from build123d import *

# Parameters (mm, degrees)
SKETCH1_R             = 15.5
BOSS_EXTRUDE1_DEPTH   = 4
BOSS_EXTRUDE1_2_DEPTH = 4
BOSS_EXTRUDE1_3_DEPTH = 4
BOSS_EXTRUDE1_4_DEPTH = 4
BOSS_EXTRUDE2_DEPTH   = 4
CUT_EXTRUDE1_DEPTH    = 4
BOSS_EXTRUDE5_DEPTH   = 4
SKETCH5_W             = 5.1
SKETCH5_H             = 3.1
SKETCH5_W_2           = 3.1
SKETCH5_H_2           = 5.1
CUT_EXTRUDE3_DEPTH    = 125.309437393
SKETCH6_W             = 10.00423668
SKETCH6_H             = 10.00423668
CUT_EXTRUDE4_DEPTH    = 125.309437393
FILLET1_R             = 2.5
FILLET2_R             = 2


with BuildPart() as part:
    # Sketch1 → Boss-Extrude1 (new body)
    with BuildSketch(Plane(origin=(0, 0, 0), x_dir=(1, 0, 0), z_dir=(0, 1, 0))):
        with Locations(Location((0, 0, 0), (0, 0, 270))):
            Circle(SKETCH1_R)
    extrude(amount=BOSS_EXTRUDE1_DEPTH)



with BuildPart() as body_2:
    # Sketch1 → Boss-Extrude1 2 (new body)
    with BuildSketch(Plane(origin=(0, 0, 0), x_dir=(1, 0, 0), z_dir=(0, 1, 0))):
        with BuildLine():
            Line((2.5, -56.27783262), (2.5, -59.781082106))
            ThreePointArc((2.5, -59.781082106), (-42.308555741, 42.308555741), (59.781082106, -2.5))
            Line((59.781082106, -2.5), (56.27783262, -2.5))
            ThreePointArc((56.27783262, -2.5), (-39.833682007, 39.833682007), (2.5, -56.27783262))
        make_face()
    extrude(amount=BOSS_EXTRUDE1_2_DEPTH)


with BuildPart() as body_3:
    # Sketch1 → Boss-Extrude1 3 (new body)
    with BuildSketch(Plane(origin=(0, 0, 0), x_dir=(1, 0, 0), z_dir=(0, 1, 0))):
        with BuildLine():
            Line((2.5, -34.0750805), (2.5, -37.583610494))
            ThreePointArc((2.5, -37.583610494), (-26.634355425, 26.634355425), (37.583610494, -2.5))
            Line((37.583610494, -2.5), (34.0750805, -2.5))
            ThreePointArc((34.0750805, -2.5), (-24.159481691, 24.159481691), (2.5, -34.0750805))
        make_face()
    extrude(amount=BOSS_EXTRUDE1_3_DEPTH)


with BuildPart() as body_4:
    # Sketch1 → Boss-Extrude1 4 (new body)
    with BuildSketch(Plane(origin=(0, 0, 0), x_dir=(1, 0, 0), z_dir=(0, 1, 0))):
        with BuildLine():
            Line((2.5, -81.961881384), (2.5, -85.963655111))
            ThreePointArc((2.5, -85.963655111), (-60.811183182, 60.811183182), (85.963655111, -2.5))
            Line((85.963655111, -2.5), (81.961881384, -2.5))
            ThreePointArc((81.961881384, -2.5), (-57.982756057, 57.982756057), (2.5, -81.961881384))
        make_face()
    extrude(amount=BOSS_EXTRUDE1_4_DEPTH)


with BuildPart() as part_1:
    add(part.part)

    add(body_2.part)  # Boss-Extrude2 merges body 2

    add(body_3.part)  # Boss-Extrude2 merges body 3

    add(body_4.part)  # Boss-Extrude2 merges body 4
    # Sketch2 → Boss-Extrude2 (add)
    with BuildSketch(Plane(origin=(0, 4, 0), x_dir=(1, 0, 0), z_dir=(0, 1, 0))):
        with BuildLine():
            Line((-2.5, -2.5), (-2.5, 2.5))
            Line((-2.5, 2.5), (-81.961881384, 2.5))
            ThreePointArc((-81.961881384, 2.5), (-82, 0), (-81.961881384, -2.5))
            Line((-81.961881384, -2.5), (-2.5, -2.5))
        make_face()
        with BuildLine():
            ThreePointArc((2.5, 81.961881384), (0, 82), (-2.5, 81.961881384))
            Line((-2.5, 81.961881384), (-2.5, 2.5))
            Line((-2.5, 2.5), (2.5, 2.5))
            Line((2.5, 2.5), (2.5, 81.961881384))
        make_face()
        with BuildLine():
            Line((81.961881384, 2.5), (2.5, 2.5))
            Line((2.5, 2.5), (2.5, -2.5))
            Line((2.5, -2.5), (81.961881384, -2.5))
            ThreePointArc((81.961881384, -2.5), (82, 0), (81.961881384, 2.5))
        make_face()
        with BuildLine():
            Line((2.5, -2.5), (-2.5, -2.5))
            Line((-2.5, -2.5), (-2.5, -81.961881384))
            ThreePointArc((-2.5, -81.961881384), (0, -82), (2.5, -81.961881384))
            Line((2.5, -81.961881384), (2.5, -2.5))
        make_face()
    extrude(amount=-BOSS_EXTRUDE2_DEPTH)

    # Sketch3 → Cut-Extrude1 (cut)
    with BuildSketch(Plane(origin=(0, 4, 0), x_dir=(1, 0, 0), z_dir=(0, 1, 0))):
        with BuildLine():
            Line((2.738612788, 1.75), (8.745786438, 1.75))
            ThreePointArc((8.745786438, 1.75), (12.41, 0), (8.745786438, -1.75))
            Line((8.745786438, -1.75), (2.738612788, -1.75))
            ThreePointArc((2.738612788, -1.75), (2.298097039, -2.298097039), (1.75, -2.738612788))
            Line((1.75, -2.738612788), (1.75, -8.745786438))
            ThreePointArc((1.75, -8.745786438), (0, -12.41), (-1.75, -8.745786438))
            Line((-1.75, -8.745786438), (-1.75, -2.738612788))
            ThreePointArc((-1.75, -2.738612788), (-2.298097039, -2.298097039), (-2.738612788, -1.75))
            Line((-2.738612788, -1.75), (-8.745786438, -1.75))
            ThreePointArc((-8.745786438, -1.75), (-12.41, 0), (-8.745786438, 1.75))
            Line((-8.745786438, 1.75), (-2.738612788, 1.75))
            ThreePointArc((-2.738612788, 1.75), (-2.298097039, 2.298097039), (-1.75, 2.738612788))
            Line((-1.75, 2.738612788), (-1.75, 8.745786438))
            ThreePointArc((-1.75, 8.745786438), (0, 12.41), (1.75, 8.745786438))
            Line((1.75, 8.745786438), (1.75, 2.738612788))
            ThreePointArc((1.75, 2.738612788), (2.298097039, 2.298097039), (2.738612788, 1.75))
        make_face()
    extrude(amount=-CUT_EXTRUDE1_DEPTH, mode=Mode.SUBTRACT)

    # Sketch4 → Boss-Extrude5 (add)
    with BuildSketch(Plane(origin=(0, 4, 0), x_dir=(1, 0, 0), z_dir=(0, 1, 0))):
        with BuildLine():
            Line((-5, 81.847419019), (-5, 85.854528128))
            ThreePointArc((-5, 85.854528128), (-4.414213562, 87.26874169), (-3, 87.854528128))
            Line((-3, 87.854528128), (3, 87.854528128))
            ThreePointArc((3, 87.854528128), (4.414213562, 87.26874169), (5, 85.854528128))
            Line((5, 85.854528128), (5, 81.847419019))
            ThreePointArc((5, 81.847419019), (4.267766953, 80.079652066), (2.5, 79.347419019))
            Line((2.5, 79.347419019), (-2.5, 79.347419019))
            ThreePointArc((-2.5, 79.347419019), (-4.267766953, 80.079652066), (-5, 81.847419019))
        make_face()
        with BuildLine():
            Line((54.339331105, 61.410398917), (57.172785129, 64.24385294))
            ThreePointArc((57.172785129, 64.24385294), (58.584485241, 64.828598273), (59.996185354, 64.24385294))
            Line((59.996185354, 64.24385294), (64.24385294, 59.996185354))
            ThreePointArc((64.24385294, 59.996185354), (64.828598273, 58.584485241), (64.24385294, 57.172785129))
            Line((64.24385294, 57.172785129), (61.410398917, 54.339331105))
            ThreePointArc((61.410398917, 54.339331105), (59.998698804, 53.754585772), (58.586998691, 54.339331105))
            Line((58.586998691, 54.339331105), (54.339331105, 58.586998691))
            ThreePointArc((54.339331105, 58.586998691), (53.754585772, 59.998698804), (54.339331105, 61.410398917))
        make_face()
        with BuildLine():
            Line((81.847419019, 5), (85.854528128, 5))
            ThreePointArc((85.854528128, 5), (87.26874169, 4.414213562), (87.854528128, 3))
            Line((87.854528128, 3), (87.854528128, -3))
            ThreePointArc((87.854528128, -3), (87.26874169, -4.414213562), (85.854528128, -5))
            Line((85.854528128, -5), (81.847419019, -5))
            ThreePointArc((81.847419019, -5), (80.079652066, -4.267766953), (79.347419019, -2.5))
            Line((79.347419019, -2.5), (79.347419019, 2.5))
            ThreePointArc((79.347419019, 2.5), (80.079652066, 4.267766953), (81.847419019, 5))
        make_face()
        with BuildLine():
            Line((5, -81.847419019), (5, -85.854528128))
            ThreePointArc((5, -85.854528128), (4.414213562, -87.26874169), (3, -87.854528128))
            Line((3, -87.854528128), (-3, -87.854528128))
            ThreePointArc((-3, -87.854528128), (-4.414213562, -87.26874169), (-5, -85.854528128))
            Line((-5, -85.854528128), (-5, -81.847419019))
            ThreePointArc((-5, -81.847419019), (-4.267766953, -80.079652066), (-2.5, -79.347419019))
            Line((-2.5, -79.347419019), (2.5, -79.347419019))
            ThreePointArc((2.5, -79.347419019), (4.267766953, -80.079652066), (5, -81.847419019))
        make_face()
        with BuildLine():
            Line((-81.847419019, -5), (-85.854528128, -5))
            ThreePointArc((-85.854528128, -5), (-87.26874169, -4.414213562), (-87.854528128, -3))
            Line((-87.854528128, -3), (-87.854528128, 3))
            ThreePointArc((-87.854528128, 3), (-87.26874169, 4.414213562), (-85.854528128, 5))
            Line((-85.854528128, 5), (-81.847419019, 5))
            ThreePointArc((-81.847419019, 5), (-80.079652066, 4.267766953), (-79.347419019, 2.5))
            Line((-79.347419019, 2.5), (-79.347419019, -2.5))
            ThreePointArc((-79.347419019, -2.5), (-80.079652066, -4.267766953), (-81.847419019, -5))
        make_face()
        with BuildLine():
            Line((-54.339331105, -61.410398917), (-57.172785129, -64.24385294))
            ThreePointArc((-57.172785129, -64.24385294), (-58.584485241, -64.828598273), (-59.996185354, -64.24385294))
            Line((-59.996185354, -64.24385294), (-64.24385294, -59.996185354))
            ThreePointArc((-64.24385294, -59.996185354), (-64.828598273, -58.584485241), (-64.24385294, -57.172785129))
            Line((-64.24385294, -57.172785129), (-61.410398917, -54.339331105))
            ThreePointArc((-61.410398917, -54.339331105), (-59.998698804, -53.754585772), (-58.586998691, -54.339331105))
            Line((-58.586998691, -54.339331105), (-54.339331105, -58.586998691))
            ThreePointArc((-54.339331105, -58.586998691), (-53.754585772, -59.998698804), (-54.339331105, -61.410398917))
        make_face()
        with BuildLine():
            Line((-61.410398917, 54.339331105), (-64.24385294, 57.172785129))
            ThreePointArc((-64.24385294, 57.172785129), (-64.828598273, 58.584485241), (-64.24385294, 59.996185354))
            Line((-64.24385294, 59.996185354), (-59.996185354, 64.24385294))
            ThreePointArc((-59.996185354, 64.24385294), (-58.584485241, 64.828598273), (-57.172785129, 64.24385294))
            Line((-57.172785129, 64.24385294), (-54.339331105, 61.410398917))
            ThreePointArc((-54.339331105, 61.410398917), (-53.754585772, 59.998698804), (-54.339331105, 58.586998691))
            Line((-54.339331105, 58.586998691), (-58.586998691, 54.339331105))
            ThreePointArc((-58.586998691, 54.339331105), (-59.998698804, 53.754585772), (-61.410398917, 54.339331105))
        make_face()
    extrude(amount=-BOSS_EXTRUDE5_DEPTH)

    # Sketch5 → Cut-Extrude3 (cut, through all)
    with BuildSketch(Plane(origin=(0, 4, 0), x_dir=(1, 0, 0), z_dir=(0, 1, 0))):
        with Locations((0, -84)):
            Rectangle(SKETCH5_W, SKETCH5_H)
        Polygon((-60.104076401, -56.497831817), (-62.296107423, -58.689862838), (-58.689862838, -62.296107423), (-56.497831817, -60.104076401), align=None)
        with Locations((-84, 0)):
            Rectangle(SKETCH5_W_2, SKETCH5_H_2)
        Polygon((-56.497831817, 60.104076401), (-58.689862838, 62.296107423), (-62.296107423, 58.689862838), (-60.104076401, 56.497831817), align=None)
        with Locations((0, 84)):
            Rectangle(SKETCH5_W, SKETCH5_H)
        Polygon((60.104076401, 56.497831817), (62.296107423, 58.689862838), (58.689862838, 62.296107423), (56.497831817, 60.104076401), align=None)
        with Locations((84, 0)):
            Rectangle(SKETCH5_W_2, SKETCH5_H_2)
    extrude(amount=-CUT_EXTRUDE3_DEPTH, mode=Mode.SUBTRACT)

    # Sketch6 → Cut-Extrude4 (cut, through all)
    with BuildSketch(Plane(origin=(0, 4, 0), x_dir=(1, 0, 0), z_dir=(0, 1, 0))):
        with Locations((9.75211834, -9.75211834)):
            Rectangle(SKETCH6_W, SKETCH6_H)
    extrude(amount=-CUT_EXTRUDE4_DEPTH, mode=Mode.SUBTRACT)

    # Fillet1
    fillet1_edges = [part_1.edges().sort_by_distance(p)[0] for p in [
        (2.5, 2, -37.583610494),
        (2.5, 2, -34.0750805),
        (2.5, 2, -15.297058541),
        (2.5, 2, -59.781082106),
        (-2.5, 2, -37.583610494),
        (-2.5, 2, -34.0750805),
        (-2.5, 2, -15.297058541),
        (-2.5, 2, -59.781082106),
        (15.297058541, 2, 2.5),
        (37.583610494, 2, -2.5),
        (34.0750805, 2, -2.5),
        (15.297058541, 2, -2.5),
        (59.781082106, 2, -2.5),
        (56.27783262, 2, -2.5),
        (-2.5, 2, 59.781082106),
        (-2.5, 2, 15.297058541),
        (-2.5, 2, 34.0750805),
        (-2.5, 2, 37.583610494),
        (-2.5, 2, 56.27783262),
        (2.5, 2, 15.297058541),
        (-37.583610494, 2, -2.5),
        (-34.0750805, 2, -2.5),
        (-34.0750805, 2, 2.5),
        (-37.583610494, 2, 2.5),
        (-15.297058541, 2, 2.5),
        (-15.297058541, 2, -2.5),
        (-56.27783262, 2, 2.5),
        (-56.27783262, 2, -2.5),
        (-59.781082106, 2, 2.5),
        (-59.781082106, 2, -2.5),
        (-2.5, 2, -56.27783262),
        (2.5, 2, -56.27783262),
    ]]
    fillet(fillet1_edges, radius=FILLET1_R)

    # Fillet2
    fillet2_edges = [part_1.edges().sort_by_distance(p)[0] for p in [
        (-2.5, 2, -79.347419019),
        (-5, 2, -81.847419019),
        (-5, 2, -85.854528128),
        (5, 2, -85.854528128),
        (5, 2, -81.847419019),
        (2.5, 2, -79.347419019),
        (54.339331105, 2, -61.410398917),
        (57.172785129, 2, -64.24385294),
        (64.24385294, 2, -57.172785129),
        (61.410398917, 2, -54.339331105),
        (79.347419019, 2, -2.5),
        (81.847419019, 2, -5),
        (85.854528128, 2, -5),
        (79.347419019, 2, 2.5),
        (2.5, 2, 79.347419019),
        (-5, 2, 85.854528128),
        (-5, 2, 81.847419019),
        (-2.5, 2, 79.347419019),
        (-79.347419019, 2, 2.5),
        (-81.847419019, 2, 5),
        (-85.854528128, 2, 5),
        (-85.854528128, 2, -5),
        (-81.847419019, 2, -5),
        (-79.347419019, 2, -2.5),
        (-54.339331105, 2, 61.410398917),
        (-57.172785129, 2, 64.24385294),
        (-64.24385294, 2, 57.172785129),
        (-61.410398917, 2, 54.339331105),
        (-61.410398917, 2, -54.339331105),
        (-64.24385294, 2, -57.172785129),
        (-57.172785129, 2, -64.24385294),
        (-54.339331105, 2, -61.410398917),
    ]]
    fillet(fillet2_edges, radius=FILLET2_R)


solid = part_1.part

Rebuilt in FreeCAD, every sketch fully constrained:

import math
import FreeCAD as App
import Part
import Sketcher

V = App.Vector


def edges_at(feature, points):
    """Names of the edges that pass closest to the given points."""
    edges = feature.Shape.Edges
    near = lambda p: min(range(len(edges)), key=lambda i: edges[i].distToShape(Part.Vertex(*p))[0])
    return sorted({f"Edge{near(p) + 1}" for p in points})


def add_polygon(sketch, points):
    """Adds a closed chain of lines whose ends are joined by coincident constraints."""
    first, n = sketch.GeometryCount, len(points)
    for a, b in zip(points, points[1:] + points[:1]):
        sketch.addGeometry(Part.LineSegment(App.Vector(*a, 0), App.Vector(*b, 0)), False)
    for i in range(n):
        sketch.addConstraint(Sketcher.Constraint("Coincident", first + i, 2, first + (i + 1) % n, 1))

doc = App.newDocument("Part")
body = doc.addObject("PartDesign::Body", "Body")

# Sketch on XZ plane
sketch1 = body.newObject("Sketcher::SketchObject", "Sketch")
sketch1.AttachmentSupport = (doc.getObject("XZ_Plane"), [""])
sketch1.MapMode = "FlatFace"
sketch1.addGeometry(Part.Circle(V(0, 0, 0), V(0, 0, 1), 15.5), False)
sketch1.addConstraint(Sketcher.Constraint("Coincident", 0, 3, -1, 1))
sketch1.addConstraint(Sketcher.Constraint("Diameter", 0, 31.0))
pad1 = body.newObject("PartDesign::Pad", "Pad")
pad1.Profile = sketch1
pad1.Length = 4
pad1.Reversed = True
body2 = doc.addObject("PartDesign::Body", "Body001")

# Sketch on XZ plane
sketch2 = body2.newObject("Sketcher::SketchObject", "Sketch001")
sketch2.AttachmentSupport = (doc.getObject("XZ_Plane001"), [""])
sketch2.MapMode = "FlatFace"
sketch2.addGeometry(Part.LineSegment(V(2.5, 59.781082, 0), V(2.5, 56.277833, 0)), False)
sketch2.addGeometry(Part.ArcOfCircle(Part.Circle(V(0, 0, 0), V(0, 0, 1), 56.333333), math.radians(87.456453), math.radians(362.543547)), False)
sketch2.addGeometry(Part.LineSegment(V(56.277833, 2.5, 0), V(59.781082, 2.5, 0)), False)
sketch2.addGeometry(Part.ArcOfCircle(Part.Circle(V(0, 0, 0), V(0, 0, 1), 59.833333), math.radians(87.605329), math.radians(362.394671)), False)
sketch2.addConstraint(Sketcher.Constraint("Coincident", 0, 2, 1, 1))
sketch2.addConstraint(Sketcher.Constraint("Coincident", 1, 2, 2, 1))
sketch2.addConstraint(Sketcher.Constraint("Coincident", 2, 2, 3, 2))
sketch2.addConstraint(Sketcher.Constraint("Coincident", 3, 1, 0, 1))
sketch2.addConstraint(Sketcher.Constraint("Vertical", 0))
sketch2.addConstraint(Sketcher.Constraint("Horizontal", 2))
sketch2.addConstraint(Sketcher.Constraint("Coincident", 1, 3, -1, 1))
sketch2.addConstraint(Sketcher.Constraint("Coincident", 3, 3, -1, 1))
sketch2.addConstraint(Sketcher.Constraint("DistanceX", -1, 1, 0, 2, 2.5))
sketch2.addConstraint(Sketcher.Constraint("DistanceY", -1, 1, 1, 2, 2.5))
sketch2.addConstraint(Sketcher.Constraint("Radius", 1, 56.333333))
sketch2.addConstraint(Sketcher.Constraint("Radius", 3, 59.833333))
pad2 = body2.newObject("PartDesign::Pad", "Pad001")
pad2.Profile = sketch2
pad2.Length = 4
pad2.Reversed = True
body3 = doc.addObject("PartDesign::Body", "Body002")

# Sketch on XZ plane
sketch3 = body3.newObject("Sketcher::SketchObject", "Sketch002")
sketch3.AttachmentSupport = (doc.getObject("XZ_Plane002"), [""])
sketch3.MapMode = "FlatFace"
sketch3.addGeometry(Part.LineSegment(V(2.5, 37.58361, 0), V(2.5, 34.07508, 0)), False)
sketch3.addGeometry(Part.ArcOfCircle(Part.Circle(V(0, 0, 0), V(0, 0, 1), 34.166667), math.radians(85.803876), math.radians(364.196124)), False)
sketch3.addGeometry(Part.LineSegment(V(34.07508, 2.5, 0), V(37.58361, 2.5, 0)), False)
sketch3.addGeometry(Part.ArcOfCircle(Part.Circle(V(0, 0, 0), V(0, 0, 1), 37.666667), math.radians(86.194385), math.radians(363.805615)), False)
sketch3.addConstraint(Sketcher.Constraint("Coincident", 0, 2, 1, 1))
sketch3.addConstraint(Sketcher.Constraint("Coincident", 1, 2, 2, 1))
sketch3.addConstraint(Sketcher.Constraint("Coincident", 2, 2, 3, 2))
sketch3.addConstraint(Sketcher.Constraint("Coincident", 3, 1, 0, 1))
sketch3.addConstraint(Sketcher.Constraint("Vertical", 0))
sketch3.addConstraint(Sketcher.Constraint("Horizontal", 2))
sketch3.addConstraint(Sketcher.Constraint("Coincident", 1, 3, -1, 1))
sketch3.addConstraint(Sketcher.Constraint("Coincident", 3, 3, -1, 1))
sketch3.addConstraint(Sketcher.Constraint("Equal", 2, 0))
sketch3.addConstraint(Sketcher.Constraint("DistanceX", -1, 1, 0, 2, 2.5))
sketch3.addConstraint(Sketcher.Constraint("Radius", 1, 34.166667))
sketch3.addConstraint(Sketcher.Constraint("Radius", 3, 37.666667))
pad3 = body3.newObject("PartDesign::Pad", "Pad002")
pad3.Profile = sketch3
pad3.Length = 4
pad3.Reversed = True
body4 = doc.addObject("PartDesign::Body", "Body003")

# Sketch on XZ plane
sketch4 = body4.newObject("Sketcher::SketchObject", "Sketch003")
sketch4.AttachmentSupport = (doc.getObject("XZ_Plane003"), [""])
sketch4.MapMode = "FlatFace"
sketch4.addGeometry(Part.LineSegment(V(2.5, 85.963655, 0), V(2.5, 81.961881, 0)), False)
sketch4.addGeometry(Part.ArcOfCircle(Part.Circle(V(0, 0, 0), V(0, 0, 1), 82), math.radians(88.252907), math.radians(361.747093)), False)
sketch4.addGeometry(Part.LineSegment(V(81.961881, 2.5, 0), V(85.963655, 2.5, 0)), False)
sketch4.addGeometry(Part.ArcOfCircle(Part.Circle(V(0, 0, 0), V(0, 0, 1), 86), math.radians(88.33419), math.radians(361.66581)), False)
sketch4.addConstraint(Sketcher.Constraint("Coincident", 0, 2, 1, 1))
sketch4.addConstraint(Sketcher.Constraint("Coincident", 1, 2, 2, 1))
sketch4.addConstraint(Sketcher.Constraint("Coincident", 2, 2, 3, 2))
sketch4.addConstraint(Sketcher.Constraint("Coincident", 3, 1, 0, 1))
sketch4.addConstraint(Sketcher.Constraint("Vertical", 0))
sketch4.addConstraint(Sketcher.Constraint("Horizontal", 2))
sketch4.addConstraint(Sketcher.Constraint("Coincident", 1, 3, -1, 1))
sketch4.addConstraint(Sketcher.Constraint("Coincident", 3, 3, -1, 1))
sketch4.addConstraint(Sketcher.Constraint("Radius", 1, 82.0))
sketch4.addConstraint(Sketcher.Constraint("Radius", 3, 86.0))
sketch4.addConstraint(Sketcher.Constraint("DistanceX", -1, 1, 0, 2, 2.5))
sketch4.addConstraint(Sketcher.Constraint("DistanceY", -1, 1, 1, 2, 2.5))
pad4 = body4.newObject("PartDesign::Pad", "Pad003")
pad4.Profile = sketch4
pad4.Length = 4
pad4.Reversed = True
body.AllowCompound = True
doc.recompute()

boolean = body.newObject("PartDesign::Boolean", "Boolean")
boolean.Type = "Fuse"
boolean.addObjects([body2])
doc.recompute()

boolean2 = body.newObject("PartDesign::Boolean", "Boolean001")
boolean2.Type = "Fuse"
boolean2.addObjects([body3])
doc.recompute()

boolean3 = body.newObject("PartDesign::Boolean", "Boolean002")
boolean3.Type = "Fuse"
boolean3.addObjects([body4])

# Sketch on XZ plane
sketch5 = body.newObject("Sketcher::SketchObject", "Sketch004")
sketch5.AttachmentSupport = (doc.getObject("XZ_Plane"), [""])
sketch5.MapMode = "FlatFace"
sketch5.AttachmentOffset = App.Placement(V(0, 0, -4), App.Rotation())
sketch5.addGeometry(Part.LineSegment(V(-2.5, 2.5, 0), V(-2.5, -2.5, 0)), False)
sketch5.addGeometry(Part.LineSegment(V(-2.5, -2.5, 0), V(-81.961881, -2.5, 0)), False)
sketch5.addGeometry(Part.ArcOfCircle(Part.Circle(V(0, 0, 0), V(0, 0, 1), 82), math.radians(178.252907), math.radians(181.747093)), False)
sketch5.addGeometry(Part.LineSegment(V(-81.961881, 2.5, 0), V(-2.5, 2.5, 0)), False)
sketch5.addGeometry(Part.ArcOfCircle(Part.Circle(V(0, 0, 0), V(0, 0, 1), 82), math.radians(-91.747093), math.radians(-88.252907)), False)
sketch5.addGeometry(Part.LineSegment(V(-2.5, -81.961881, 0), V(-2.5, -2.5, 0)), False)
sketch5.addGeometry(Part.LineSegment(V(-2.5, -2.5, 0), V(2.5, -2.5, 0)), False)
sketch5.addGeometry(Part.LineSegment(V(2.5, -2.5, 0), V(2.5, -81.961881, 0)), False)
sketch5.addGeometry(Part.LineSegment(V(81.961881, -2.5, 0), V(2.5, -2.5, 0)), False)
sketch5.addGeometry(Part.LineSegment(V(2.5, -2.5, 0), V(2.5, 2.5, 0)), False)
sketch5.addGeometry(Part.LineSegment(V(2.5, 2.5, 0), V(81.961881, 2.5, 0)), False)
sketch5.addGeometry(Part.ArcOfCircle(Part.Circle(V(0, 0, 0), V(0, 0, 1), 82), math.radians(-1.747093), math.radians(1.747093)), False)
sketch5.addGeometry(Part.LineSegment(V(2.5, 2.5, 0), V(-2.5, 2.5, 0)), False)
sketch5.addGeometry(Part.LineSegment(V(-2.5, 2.5, 0), V(-2.5, 81.961881, 0)), False)
sketch5.addGeometry(Part.ArcOfCircle(Part.Circle(V(0, 0, 0), V(0, 0, 1), 82), math.radians(88.252907), math.radians(91.747093)), False)
sketch5.addGeometry(Part.LineSegment(V(2.5, 81.961881, 0), V(2.5, 2.5, 0)), False)
sketch5.addConstraint(Sketcher.Constraint("Coincident", 0, 2, 1, 1))
sketch5.addConstraint(Sketcher.Constraint("Coincident", 1, 2, 2, 2))
sketch5.addConstraint(Sketcher.Constraint("Coincident", 2, 1, 3, 1))
sketch5.addConstraint(Sketcher.Constraint("Coincident", 3, 2, 0, 1))
sketch5.addConstraint(Sketcher.Constraint("Coincident", 4, 1, 5, 1))
sketch5.addConstraint(Sketcher.Constraint("Coincident", 5, 2, 6, 1))
sketch5.addConstraint(Sketcher.Constraint("Coincident", 6, 2, 7, 1))
sketch5.addConstraint(Sketcher.Constraint("Coincident", 7, 2, 4, 2))
sketch5.addConstraint(Sketcher.Constraint("Coincident", 8, 2, 9, 1))
sketch5.addConstraint(Sketcher.Constraint("Coincident", 9, 2, 10, 1))
sketch5.addConstraint(Sketcher.Constraint("Coincident", 10, 2, 11, 2))
sketch5.addConstraint(Sketcher.Constraint("Coincident", 11, 1, 8, 1))
sketch5.addConstraint(Sketcher.Constraint("Coincident", 12, 2, 13, 1))
sketch5.addConstraint(Sketcher.Constraint("Coincident", 13, 2, 14, 2))
sketch5.addConstraint(Sketcher.Constraint("Coincident", 14, 1, 15, 1))
sketch5.addConstraint(Sketcher.Constraint("Coincident", 15, 2, 12, 1))
sketch5.addConstraint(Sketcher.Constraint("Vertical", 0))
sketch5.addConstraint(Sketcher.Constraint("Horizontal", 1))
sketch5.addConstraint(Sketcher.Constraint("Horizontal", 3))
sketch5.addConstraint(Sketcher.Constraint("Vertical", 5))
sketch5.addConstraint(Sketcher.Constraint("Horizontal", 6))
sketch5.addConstraint(Sketcher.Constraint("Vertical", 7))
sketch5.addConstraint(Sketcher.Constraint("Horizontal", 8))
sketch5.addConstraint(Sketcher.Constraint("Vertical", 9))
sketch5.addConstraint(Sketcher.Constraint("Horizontal", 10))
sketch5.addConstraint(Sketcher.Constraint("Horizontal", 12))
sketch5.addConstraint(Sketcher.Constraint("Vertical", 13))
sketch5.addConstraint(Sketcher.Constraint("Vertical", 15))
sketch5.addConstraint(Sketcher.Constraint("Coincident", 2, 3, -1, 1))
sketch5.addConstraint(Sketcher.Constraint("Coincident", 4, 3, -1, 1))
sketch5.addConstraint(Sketcher.Constraint("Coincident", 11, 3, -1, 1))
sketch5.addConstraint(Sketcher.Constraint("Coincident", 14, 3, -1, 1))
sketch5.addConstraint(Sketcher.Constraint("Coincident", 5, 2, 0, 2))
sketch5.addConstraint(Sketcher.Constraint("Coincident", 8, 2, 6, 2))
sketch5.addConstraint(Sketcher.Constraint("Coincident", 12, 2, 3, 2))
sketch5.addConstraint(Sketcher.Constraint("Coincident", 15, 2, 9, 2))
sketch5.addConstraint(Sketcher.Constraint("Equal", 2, 4))
sketch5.addConstraint(Sketcher.Constraint("Equal", 4, 11))
sketch5.addConstraint(Sketcher.Constraint("Equal", 11, 14))
sketch5.addConstraint(Sketcher.Constraint("Symmetric", 3, 2, 6, 2, -1, 1))
sketch5.addConstraint(Sketcher.Constraint("Equal", 12, 0))
sketch5.addConstraint(Sketcher.Constraint("Radius", 2, 82.0))
sketch5.addConstraint(Sketcher.Constraint("DistanceX", 6, 1, 6, 2, 5.0))
pad5 = body.newObject("PartDesign::Pad", "Pad004")
pad5.Profile = sketch5
pad5.Length = 4

# Sketch on XZ plane
sketch6 = body.newObject("Sketcher::SketchObject", "Sketch005")
sketch6.AttachmentSupport = (doc.getObject("XZ_Plane"), [""])
sketch6.MapMode = "FlatFace"
sketch6.AttachmentOffset = App.Placement(V(0, 0, -4), App.Rotation())
sketch6.addGeometry(Part.LineSegment(V(8.745786, -1.75, 0), V(2.738613, -1.75, 0)), False)
sketch6.addGeometry(Part.ArcOfCircle(Part.Circle(V(0, 0, 0), V(0, 0, 1), 3.25), math.radians(-57.42103), math.radians(-32.57897)), False)
sketch6.addGeometry(Part.LineSegment(V(1.75, -2.738613, 0), V(1.75, -8.745786, 0)), False)
sketch6.addGeometry(Part.ArcOfCircle(Part.Circle(V(0, -10.16, 0), V(0, 0, 1), 2.25), math.radians(141.057559), math.radians(398.942441)), False)
sketch6.addGeometry(Part.LineSegment(V(-1.75, -8.745786, 0), V(-1.75, -2.738613, 0)), False)
sketch6.addGeometry(Part.ArcOfCircle(Part.Circle(V(0, 0, 0), V(0, 0, 1), 3.25), math.radians(-147.42103), math.radians(-122.57897)), False)
sketch6.addGeometry(Part.LineSegment(V(-2.738613, -1.75, 0), V(-8.745786, -1.75, 0)), False)
sketch6.addGeometry(Part.ArcOfCircle(Part.Circle(V(-10.16, 0, 0), V(0, 0, 1), 2.25), math.radians(51.057559), math.radians(308.942441)), False)
sketch6.addGeometry(Part.LineSegment(V(-8.745786, 1.75, 0), V(-2.738613, 1.75, 0)), False)
sketch6.addGeometry(Part.ArcOfCircle(Part.Circle(V(0, 0, 0), V(0, 0, 1), 3.25), math.radians(122.57897), math.radians(147.42103)), False)
sketch6.addGeometry(Part.LineSegment(V(-1.75, 2.738613, 0), V(-1.75, 8.745786, 0)), False)
sketch6.addGeometry(Part.ArcOfCircle(Part.Circle(V(0, 10.16, 0), V(0, 0, 1), 2.25), math.radians(-38.942441), math.radians(218.942441)), False)
sketch6.addGeometry(Part.LineSegment(V(1.75, 8.745786, 0), V(1.75, 2.738613, 0)), False)
sketch6.addGeometry(Part.ArcOfCircle(Part.Circle(V(0, 0, 0), V(0, 0, 1), 3.25), math.radians(32.57897), math.radians(57.42103)), False)
sketch6.addGeometry(Part.LineSegment(V(2.738613, 1.75, 0), V(8.745786, 1.75, 0)), False)
sketch6.addGeometry(Part.ArcOfCircle(Part.Circle(V(10.16, 0, 0), V(0, 0, 1), 2.25), math.radians(-128.942441), math.radians(128.942441)), False)
sketch6.addConstraint(Sketcher.Constraint("Coincident", 0, 2, 1, 2))
sketch6.addConstraint(Sketcher.Constraint("Coincident", 1, 1, 2, 1))
sketch6.addConstraint(Sketcher.Constraint("Coincident", 2, 2, 3, 2))
sketch6.addConstraint(Sketcher.Constraint("Coincident", 3, 1, 4, 1))
sketch6.addConstraint(Sketcher.Constraint("Coincident", 4, 2, 5, 2))
sketch6.addConstraint(Sketcher.Constraint("Coincident", 5, 1, 6, 1))
sketch6.addConstraint(Sketcher.Constraint("Coincident", 6, 2, 7, 2))
sketch6.addConstraint(Sketcher.Constraint("Coincident", 7, 1, 8, 1))
sketch6.addConstraint(Sketcher.Constraint("Coincident", 8, 2, 9, 2))
sketch6.addConstraint(Sketcher.Constraint("Coincident", 9, 1, 10, 1))
sketch6.addConstraint(Sketcher.Constraint("Coincident", 10, 2, 11, 2))
sketch6.addConstraint(Sketcher.Constraint("Coincident", 11, 1, 12, 1))
sketch6.addConstraint(Sketcher.Constraint("Coincident", 12, 2, 13, 2))
sketch6.addConstraint(Sketcher.Constraint("Coincident", 13, 1, 14, 1))
sketch6.addConstraint(Sketcher.Constraint("Coincident", 14, 2, 15, 2))
sketch6.addConstraint(Sketcher.Constraint("Coincident", 15, 1, 0, 1))
sketch6.addConstraint(Sketcher.Constraint("Horizontal", 0))
sketch6.addConstraint(Sketcher.Constraint("Vertical", 2))
sketch6.addConstraint(Sketcher.Constraint("Vertical", 4))
sketch6.addConstraint(Sketcher.Constraint("Horizontal", 6))
sketch6.addConstraint(Sketcher.Constraint("Horizontal", 8))
sketch6.addConstraint(Sketcher.Constraint("Vertical", 10))
sketch6.addConstraint(Sketcher.Constraint("Vertical", 12))
sketch6.addConstraint(Sketcher.Constraint("Horizontal", 14))
sketch6.addConstraint(Sketcher.Constraint("Coincident", 1, 3, -1, 1))
sketch6.addConstraint(Sketcher.Constraint("Coincident", 5, 3, -1, 1))
sketch6.addConstraint(Sketcher.Constraint("Coincident", 9, 3, -1, 1))
sketch6.addConstraint(Sketcher.Constraint("Coincident", 13, 3, -1, 1))
sketch6.addConstraint(Sketcher.Constraint("Equal", 1, 5))
sketch6.addConstraint(Sketcher.Constraint("Equal", 3, 7))
sketch6.addConstraint(Sketcher.Constraint("Equal", 5, 9))
sketch6.addConstraint(Sketcher.Constraint("Equal", 7, 11))
sketch6.addConstraint(Sketcher.Constraint("Equal", 9, 13))
sketch6.addConstraint(Sketcher.Constraint("Equal", 11, 15))
sketch6.addConstraint(Sketcher.Constraint("Symmetric", 3, 3, 11, 3, -1, 1))
sketch6.addConstraint(Sketcher.Constraint("Symmetric", 7, 3, 15, 3, -1, 1))
sketch6.addConstraint(Sketcher.Constraint("Symmetric", 2, 2, 3, 1, -2))
sketch6.addConstraint(Sketcher.Constraint("Symmetric", 7, 1, 14, 2, -2))
sketch6.addConstraint(Sketcher.Constraint("Horizontal", 0, 2, 5, 1))
sketch6.addConstraint(Sketcher.Constraint("Horizontal", 10, 2, 11, 1))
sketch6.addConstraint(Sketcher.Constraint("Vertical", 6, 2, 7, 1))
sketch6.addConstraint(Sketcher.Constraint("Vertical", 4, 2, 9, 1))
sketch6.addConstraint(Sketcher.Constraint("Equal", 14, 2))
sketch6.addConstraint(Sketcher.Constraint("Radius", 1, 3.25))
sketch6.addConstraint(Sketcher.Constraint("Radius", 3, 2.25))
sketch6.addConstraint(Sketcher.Constraint("DistanceX", 3, 1, 2, 2, 3.5))
sketch6.addConstraint(Sketcher.Constraint("DistanceY", 6, 2, 7, 1, 3.5))
sketch6.addConstraint(Sketcher.Constraint("DistanceY", 3, 3, -1, 1, 10.16))
pocket1 = body.newObject("PartDesign::Pocket", "Pocket")
pocket1.Profile = sketch6
pocket1.Length = 4
pocket1.Reversed = True

# Sketch on XZ plane
sketch7 = body.newObject("Sketcher::SketchObject", "Sketch006")
sketch7.AttachmentSupport = (doc.getObject("XZ_Plane"), [""])
sketch7.MapMode = "FlatFace"
sketch7.AttachmentOffset = App.Placement(V(0, 0, -4), App.Rotation())
sketch7.addGeometry(Part.LineSegment(V(-5, -85.854528, 0), V(-5, -81.847419, 0)), False)
sketch7.addGeometry(Part.ArcOfCircle(Part.Circle(V(-2.5, -81.847419, 0), V(0, 0, 1), 2.5), math.radians(90), math.radians(180)), False)
sketch7.addGeometry(Part.LineSegment(V(-2.5, -79.347419, 0), V(2.5, -79.347419, 0)), False)
sketch7.addGeometry(Part.ArcOfCircle(Part.Circle(V(2.5, -81.847419, 0), V(0, 0, 1), 2.5), math.radians(0), math.radians(90)), False)
sketch7.addGeometry(Part.LineSegment(V(5, -81.847419, 0), V(5, -85.854528, 0)), False)
sketch7.addGeometry(Part.ArcOfCircle(Part.Circle(V(3, -85.854528, 0), V(0, 0, 1), 2), math.radians(-90), math.radians(0)), False)
sketch7.addGeometry(Part.LineSegment(V(3, -87.854528, 0), V(-3, -87.854528, 0)), False)
sketch7.addGeometry(Part.ArcOfCircle(Part.Circle(V(-3, -85.854528, 0), V(0, 0, 1), 2), math.radians(-180), math.radians(-90)), False)
sketch7.addGeometry(Part.LineSegment(V(57.172785, -64.243853, 0), V(54.339331, -61.410399, 0)), False)
sketch7.addGeometry(Part.ArcOfCircle(Part.Circle(V(55.751031, -59.998699, 0), V(0, 0, 1), 1.996445), math.radians(135), math.radians(225)), False)
sketch7.addGeometry(Part.LineSegment(V(54.339331, -58.586999, 0), V(58.586999, -54.339331, 0)), False)
sketch7.addGeometry(Part.ArcOfCircle(Part.Circle(V(59.998699, -55.751031, 0), V(0, 0, 1), 1.996445), math.radians(45), math.radians(135)), False)
sketch7.addGeometry(Part.LineSegment(V(61.410399, -54.339331, 0), V(64.243853, -57.172785, 0)), False)
sketch7.addGeometry(Part.ArcOfCircle(Part.Circle(V(62.832153, -58.584485, 0), V(0, 0, 1), 1.996445), math.radians(-45), math.radians(45)), False)
sketch7.addGeometry(Part.LineSegment(V(64.243853, -59.996185, 0), V(59.996185, -64.243853, 0)), False)
sketch7.addGeometry(Part.ArcOfCircle(Part.Circle(V(58.584485, -62.832153, 0), V(0, 0, 1), 1.996445), math.radians(-135), math.radians(-45)), False)
sketch7.addGeometry(Part.LineSegment(V(85.854528, -5, 0), V(81.847419, -5, 0)), False)
sketch7.addGeometry(Part.ArcOfCircle(Part.Circle(V(81.847419, -2.5, 0), V(0, 0, 1), 2.5), math.radians(180), math.radians(270)), False)
sketch7.addGeometry(Part.LineSegment(V(79.347419, -2.5, 0), V(79.347419, 2.5, 0)), False)
sketch7.addGeometry(Part.ArcOfCircle(Part.Circle(V(81.847419, 2.5, 0), V(0, 0, 1), 2.5), math.radians(90), math.radians(180)), False)
sketch7.addGeometry(Part.LineSegment(V(81.847419, 5, 0), V(85.854528, 5, 0)), False)
sketch7.addGeometry(Part.ArcOfCircle(Part.Circle(V(85.854528, 3, 0), V(0, 0, 1), 2), math.radians(0), math.radians(90)), False)
sketch7.addGeometry(Part.LineSegment(V(87.854528, 3, 0), V(87.854528, -3, 0)), False)
sketch7.addGeometry(Part.ArcOfCircle(Part.Circle(V(85.854528, -3, 0), V(0, 0, 1), 2), math.radians(-90), math.radians(0)), False)
sketch7.addGeometry(Part.LineSegment(V(5, 85.854528, 0), V(5, 81.847419, 0)), False)
sketch7.addGeometry(Part.ArcOfCircle(Part.Circle(V(2.5, 81.847419, 0), V(0, 0, 1), 2.5), math.radians(-90), math.radians(0)), False)
sketch7.addGeometry(Part.LineSegment(V(2.5, 79.347419, 0), V(-2.5, 79.347419, 0)), False)
sketch7.addGeometry(Part.ArcOfCircle(Part.Circle(V(-2.5, 81.847419, 0), V(0, 0, 1), 2.5), math.radians(180), math.radians(270)), False)
sketch7.addGeometry(Part.LineSegment(V(-5, 81.847419, 0), V(-5, 85.854528, 0)), False)
sketch7.addGeometry(Part.ArcOfCircle(Part.Circle(V(-3, 85.854528, 0), V(0, 0, 1), 2), math.radians(90), math.radians(180)), False)
sketch7.addGeometry(Part.LineSegment(V(-3, 87.854528, 0), V(3, 87.854528, 0)), False)
sketch7.addGeometry(Part.ArcOfCircle(Part.Circle(V(3, 85.854528, 0), V(0, 0, 1), 2), math.radians(0), math.radians(90)), False)
sketch7.addGeometry(Part.LineSegment(V(-85.854528, 5, 0), V(-81.847419, 5, 0)), False)
sketch7.addGeometry(Part.ArcOfCircle(Part.Circle(V(-81.847419, 2.5, 0), V(0, 0, 1), 2.5), math.radians(0), math.radians(90)), False)
sketch7.addGeometry(Part.LineSegment(V(-79.347419, 2.5, 0), V(-79.347419, -2.5, 0)), False)
sketch7.addGeometry(Part.ArcOfCircle(Part.Circle(V(-81.847419, -2.5, 0), V(0, 0, 1), 2.5), math.radians(-90), math.radians(0)), False)
sketch7.addGeometry(Part.LineSegment(V(-81.847419, -5, 0), V(-85.854528, -5, 0)), False)
sketch7.addGeometry(Part.ArcOfCircle(Part.Circle(V(-85.854528, -3, 0), V(0, 0, 1), 2), math.radians(-180), math.radians(-90)), False)
sketch7.addGeometry(Part.LineSegment(V(-87.854528, -3, 0), V(-87.854528, 3, 0)), False)
sketch7.addGeometry(Part.ArcOfCircle(Part.Circle(V(-85.854528, 3, 0), V(0, 0, 1), 2), math.radians(90), math.radians(180)), False)
sketch7.addGeometry(Part.LineSegment(V(-57.172785, 64.243853, 0), V(-54.339331, 61.410399, 0)), False)
sketch7.addGeometry(Part.ArcOfCircle(Part.Circle(V(-55.751031, 59.998699, 0), V(0, 0, 1), 1.996445), math.radians(-45), math.radians(45)), False)
sketch7.addGeometry(Part.LineSegment(V(-54.339331, 58.586999, 0), V(-58.586999, 54.339331, 0)), False)
sketch7.addGeometry(Part.ArcOfCircle(Part.Circle(V(-59.998699, 55.751031, 0), V(0, 0, 1), 1.996445), math.radians(-135), math.radians(-45)), False)
sketch7.addGeometry(Part.LineSegment(V(-61.410399, 54.339331, 0), V(-64.243853, 57.172785, 0)), False)
sketch7.addGeometry(Part.ArcOfCircle(Part.Circle(V(-62.832153, 58.584485, 0), V(0, 0, 1), 1.996445), math.radians(135), math.radians(225)), False)
sketch7.addGeometry(Part.LineSegment(V(-64.243853, 59.996185, 0), V(-59.996185, 64.243853, 0)), False)
sketch7.addGeometry(Part.ArcOfCircle(Part.Circle(V(-58.584485, 62.832153, 0), V(0, 0, 1), 1.996445), math.radians(45), math.radians(135)), False)
sketch7.addGeometry(Part.LineSegment(V(-64.243853, -57.172785, 0), V(-61.410399, -54.339331, 0)), False)
sketch7.addGeometry(Part.ArcOfCircle(Part.Circle(V(-59.998699, -55.751031, 0), V(0, 0, 1), 1.996445), math.radians(45), math.radians(135)), False)
sketch7.addGeometry(Part.LineSegment(V(-58.586999, -54.339331, 0), V(-54.339331, -58.586999, 0)), False)
sketch7.addGeometry(Part.ArcOfCircle(Part.Circle(V(-55.751031, -59.998699, 0), V(0, 0, 1), 1.996445), math.radians(-45), math.radians(45)), False)
sketch7.addGeometry(Part.LineSegment(V(-54.339331, -61.410399, 0), V(-57.172785, -64.243853, 0)), False)
sketch7.addGeometry(Part.ArcOfCircle(Part.Circle(V(-58.584485, -62.832153, 0), V(0, 0, 1), 1.996445), math.radians(-135), math.radians(-45)), False)
sketch7.addGeometry(Part.LineSegment(V(-59.996185, -64.243853, 0), V(-64.243853, -59.996185, 0)), False)
sketch7.addGeometry(Part.ArcOfCircle(Part.Circle(V(-62.832153, -58.584485, 0), V(0, 0, 1), 1.996445), math.radians(135), math.radians(225)), False)
sketch7.addConstraint(Sketcher.Constraint("Tangent", 0, 2, 1, 2))
sketch7.addConstraint(Sketcher.Constraint("Tangent", 1, 1, 2, 1))
sketch7.addConstraint(Sketcher.Constraint("Tangent", 2, 2, 3, 2))
sketch7.addConstraint(Sketcher.Constraint("Tangent", 3, 1, 4, 1))
sketch7.addConstraint(Sketcher.Constraint("Tangent", 4, 2, 5, 2))
sketch7.addConstraint(Sketcher.Constraint("Tangent", 5, 1, 6, 1))
sketch7.addConstraint(Sketcher.Constraint("Tangent", 6, 2, 7, 2))
sketch7.addConstraint(Sketcher.Constraint("Tangent", 7, 1, 0, 1))
sketch7.addConstraint(Sketcher.Constraint("Tangent", 8, 2, 9, 2))
sketch7.addConstraint(Sketcher.Constraint("Tangent", 9, 1, 10, 1))
sketch7.addConstraint(Sketcher.Constraint("Tangent", 10, 2, 11, 2))
sketch7.addConstraint(Sketcher.Constraint("Tangent", 11, 1, 12, 1))
sketch7.addConstraint(Sketcher.Constraint("Tangent", 12, 2, 13, 2))
sketch7.addConstraint(Sketcher.Constraint("Tangent", 13, 1, 14, 1))
sketch7.addConstraint(Sketcher.Constraint("Tangent", 14, 2, 15, 2))
sketch7.addConstraint(Sketcher.Constraint("Tangent", 15, 1, 8, 1))
sketch7.addConstraint(Sketcher.Constraint("Tangent", 16, 2, 17, 2))
sketch7.addConstraint(Sketcher.Constraint("Tangent", 17, 1, 18, 1))
sketch7.addConstraint(Sketcher.Constraint("Tangent", 18, 2, 19, 2))
sketch7.addConstraint(Sketcher.Constraint("Tangent", 19, 1, 20, 1))
sketch7.addConstraint(Sketcher.Constraint("Tangent", 20, 2, 21, 2))
sketch7.addConstraint(Sketcher.Constraint("Tangent", 21, 1, 22, 1))
sketch7.addConstraint(Sketcher.Constraint("Tangent", 22, 2, 23, 2))
sketch7.addConstraint(Sketcher.Constraint("Tangent", 23, 1, 16, 1))
sketch7.addConstraint(Sketcher.Constraint("Tangent", 24, 2, 25, 2))
sketch7.addConstraint(Sketcher.Constraint("Tangent", 25, 1, 26, 1))
sketch7.addConstraint(Sketcher.Constraint("Tangent", 26, 2, 27, 2))
sketch7.addConstraint(Sketcher.Constraint("Tangent", 27, 1, 28, 1))
sketch7.addConstraint(Sketcher.Constraint("Tangent", 28, 2, 29, 2))
sketch7.addConstraint(Sketcher.Constraint("Tangent", 29, 1, 30, 1))
sketch7.addConstraint(Sketcher.Constraint("Tangent", 30, 2, 31, 2))
sketch7.addConstraint(Sketcher.Constraint("Tangent", 31, 1, 24, 1))
sketch7.addConstraint(Sketcher.Constraint("Tangent", 32, 2, 33, 2))
sketch7.addConstraint(Sketcher.Constraint("Tangent", 33, 1, 34, 1))
sketch7.addConstraint(Sketcher.Constraint("Tangent", 34, 2, 35, 2))
sketch7.addConstraint(Sketcher.Constraint("Tangent", 35, 1, 36, 1))
sketch7.addConstraint(Sketcher.Constraint("Tangent", 36, 2, 37, 2))
sketch7.addConstraint(Sketcher.Constraint("Tangent", 37, 1, 38, 1))
sketch7.addConstraint(Sketcher.Constraint("Tangent", 38, 2, 39, 2))
sketch7.addConstraint(Sketcher.Constraint("Tangent", 39, 1, 32, 1))
sketch7.addConstraint(Sketcher.Constraint("Tangent", 40, 2, 41, 2))
sketch7.addConstraint(Sketcher.Constraint("Tangent", 41, 1, 42, 1))
sketch7.addConstraint(Sketcher.Constraint("Tangent", 42, 2, 43, 2))
sketch7.addConstraint(Sketcher.Constraint("Tangent", 43, 1, 44, 1))
sketch7.addConstraint(Sketcher.Constraint("Tangent", 44, 2, 45, 2))
sketch7.addConstraint(Sketcher.Constraint("Tangent", 45, 1, 46, 1))
sketch7.addConstraint(Sketcher.Constraint("Tangent", 46, 2, 47, 2))
sketch7.addConstraint(Sketcher.Constraint("Tangent", 47, 1, 40, 1))
sketch7.addConstraint(Sketcher.Constraint("Tangent", 48, 2, 49, 2))
sketch7.addConstraint(Sketcher.Constraint("Tangent", 49, 1, 50, 1))
sketch7.addConstraint(Sketcher.Constraint("Tangent", 50, 2, 51, 2))
sketch7.addConstraint(Sketcher.Constraint("Tangent", 51, 1, 52, 1))
sketch7.addConstraint(Sketcher.Constraint("Tangent", 52, 2, 53, 2))
sketch7.addConstraint(Sketcher.Constraint("Tangent", 53, 1, 54, 1))
sketch7.addConstraint(Sketcher.Constraint("Tangent", 54, 2, 55, 2))
sketch7.addConstraint(Sketcher.Constraint("Tangent", 55, 1, 48, 1))
sketch7.addConstraint(Sketcher.Constraint("Vertical", 0))
sketch7.addConstraint(Sketcher.Constraint("Horizontal", 2))
sketch7.addConstraint(Sketcher.Constraint("Vertical", 4))
sketch7.addConstraint(Sketcher.Constraint("Horizontal", 6))
sketch7.addConstraint(Sketcher.Constraint("Horizontal", 16))
sketch7.addConstraint(Sketcher.Constraint("Vertical", 18))
sketch7.addConstraint(Sketcher.Constraint("Horizontal", 20))
sketch7.addConstraint(Sketcher.Constraint("Vertical", 22))
sketch7.addConstraint(Sketcher.Constraint("Vertical", 24))
sketch7.addConstraint(Sketcher.Constraint("Horizontal", 26))
sketch7.addConstraint(Sketcher.Constraint("Vertical", 28))
sketch7.addConstraint(Sketcher.Constraint("Horizontal", 30))
sketch7.addConstraint(Sketcher.Constraint("Horizontal", 32))
sketch7.addConstraint(Sketcher.Constraint("Vertical", 34))
sketch7.addConstraint(Sketcher.Constraint("Horizontal", 36))
sketch7.addConstraint(Sketcher.Constraint("Vertical", 38))
sketch7.addConstraint(Sketcher.Constraint("Equal", 1, 3))
sketch7.addConstraint(Sketcher.Constraint("Equal", 5, 7))
sketch7.addConstraint(Sketcher.Constraint("Equal", 9, 11))
sketch7.addConstraint(Sketcher.Constraint("Equal", 11, 13))
sketch7.addConstraint(Sketcher.Constraint("Equal", 13, 15))
sketch7.addConstraint(Sketcher.Constraint("Equal", 3, 17))
sketch7.addConstraint(Sketcher.Constraint("Equal", 17, 19))
sketch7.addConstraint(Sketcher.Constraint("Equal", 7, 21))
sketch7.addConstraint(Sketcher.Constraint("Equal", 21, 23))
sketch7.addConstraint(Sketcher.Constraint("Equal", 19, 25))
sketch7.addConstraint(Sketcher.Constraint("Equal", 25, 27))
sketch7.addConstraint(Sketcher.Constraint("Equal", 23, 29))
sketch7.addConstraint(Sketcher.Constraint("Equal", 29, 31))
sketch7.addConstraint(Sketcher.Constraint("Equal", 27, 33))
sketch7.addConstraint(Sketcher.Constraint("Equal", 33, 35))
sketch7.addConstraint(Sketcher.Constraint("Equal", 31, 37))
sketch7.addConstraint(Sketcher.Constraint("Equal", 37, 39))
sketch7.addConstraint(Sketcher.Constraint("Equal", 15, 41))
sketch7.addConstraint(Sketcher.Constraint("Equal", 41, 43))
sketch7.addConstraint(Sketcher.Constraint("Equal", 43, 45))
sketch7.addConstraint(Sketcher.Constraint("Equal", 45, 47))
sketch7.addConstraint(Sketcher.Constraint("Equal", 47, 49))
sketch7.addConstraint(Sketcher.Constraint("Equal", 49, 51))
sketch7.addConstraint(Sketcher.Constraint("Equal", 51, 53))
sketch7.addConstraint(Sketcher.Constraint("Equal", 53, 55))
sketch7.addConstraint(Sketcher.Constraint("Symmetric", 1, 3, 25, 3, -1, 1))
sketch7.addConstraint(Sketcher.Constraint("Symmetric", 5, 3, 29, 3, -1, 1))
sketch7.addConstraint(Sketcher.Constraint("Symmetric", 17, 3, 33, 3, -1, 1))
sketch7.addConstraint(Sketcher.Constraint("Symmetric", 21, 3, 37, 3, -1, 1))
sketch7.addConstraint(Sketcher.Constraint("Symmetric", 9, 3, 41, 3, -1, 1))
sketch7.addConstraint(Sketcher.Constraint("Symmetric", 11, 3, 43, 3, -1, 1))
sketch7.addConstraint(Sketcher.Constraint("Symmetric", 13, 3, 45, 3, -1, 1))
sketch7.addConstraint(Sketcher.Constraint("Symmetric", 15, 3, 47, 3, -1, 1))
sketch7.addConstraint(Sketcher.Constraint("Symmetric", 11, 3, 49, 3, -2))
sketch7.addConstraint(Sketcher.Constraint("Symmetric", 9, 3, 51, 3, -2))
sketch7.addConstraint(Sketcher.Constraint("Symmetric", 15, 3, 53, 3, -2))
sketch7.addConstraint(Sketcher.Constraint("Symmetric", 13, 3, 55, 3, -2))
sketch7.addConstraint(Sketcher.Constraint("Perpendicular", 8, 10))
sketch7.addConstraint(Sketcher.Constraint("Perpendicular", 10, 12))
sketch7.addConstraint(Sketcher.Constraint("Perpendicular", 12, 14))
sketch7.addConstraint(Sketcher.Constraint("Parallel", 46, 48))
sketch7.addConstraint(Sketcher.Constraint("Horizontal", 19, 3, 33, 3))
sketch7.addConstraint(Sketcher.Constraint("Vertical", 3, 3, 25, 3))
sketch7.addConstraint(Sketcher.Constraint("Equal", 36, 0))
sketch7.addConstraint(Sketcher.Constraint("Equal", 26, 18))
sketch7.addConstraint(Sketcher.Constraint("Radius", 5, 2.0))
sketch7.addConstraint(Sketcher.Constraint("Radius", 1, 2.5))
sketch7.addConstraint(Sketcher.Constraint("DistanceX", 2, 1, 2, 2, 5.0))
sketch7.addConstraint(Sketcher.Constraint("DistanceY", 9, 1, -1, 1, 58.586999))
sketch7.addConstraint(Sketcher.Constraint("DistanceX", -1, 1, 10, 2, 58.586999))
sketch7.addConstraint(Sketcher.Constraint("Radius", 9, 1.996445))
sketch7.addConstraint(Sketcher.Constraint("DistanceX", 16, 2, 16, 1, 4.007109))
sketch7.addConstraint(Sketcher.Constraint("Distance", 8, 4.007109))
sketch7.addConstraint(Sketcher.Constraint("Distance", 10, 6.007109))
sketch7.addConstraint(Sketcher.Constraint("DistanceY", 1, 3, -1, 1, 81.847419))
sketch7.addConstraint(Sketcher.Constraint("DistanceX", -1, 1, 17, 3, 81.847419))
pad6 = body.newObject("PartDesign::Pad", "Pad005")
pad6.Profile = sketch7
pad6.Length = 4

# Sketch on XZ plane
sketch8 = body.newObject("Sketcher::SketchObject", "Sketch007")
sketch8.AttachmentSupport = (doc.getObject("XZ_Plane"), [""])
sketch8.MapMode = "FlatFace"
sketch8.AttachmentOffset = App.Placement(V(0, 0, -4), App.Rotation())
add_polygon(sketch8, [(-2.55, 82.45), (-2.55, 85.55), (2.55, 85.55), (2.55, 82.45)])  # lines 0-3
add_polygon(sketch8, [(-60.104076, 56.497832), (-62.296107, 58.689863), (-58.689863, 62.296107), (-56.497832, 60.104076)])  # lines 4-7
add_polygon(sketch8, [(-85.55, -2.55), (-85.55, 2.55), (-82.45, 2.55), (-82.45, -2.55)])  # lines 8-11
add_polygon(sketch8, [(-56.497832, -60.104076), (-58.689863, -62.296107), (-62.296107, -58.689863), (-60.104076, -56.497832)])  # lines 12-15
add_polygon(sketch8, [(-2.55, -85.55), (-2.55, -82.45), (2.55, -82.45), (2.55, -85.55)])  # lines 16-19
add_polygon(sketch8, [(60.104076, -56.497832), (62.296107, -58.689863), (58.689863, -62.296107), (56.497832, -60.104076)])  # lines 20-23
add_polygon(sketch8, [(82.45, -2.55), (82.45, 2.55), (85.55, 2.55), (85.55, -2.55)])  # lines 24-27
sketch8.addConstraint(Sketcher.Constraint("Vertical", 0))
sketch8.addConstraint(Sketcher.Constraint("Horizontal", 1))
sketch8.addConstraint(Sketcher.Constraint("Vertical", 2))
sketch8.addConstraint(Sketcher.Constraint("Horizontal", 3))
sketch8.addConstraint(Sketcher.Constraint("Vertical", 8))
sketch8.addConstraint(Sketcher.Constraint("Horizontal", 9))
sketch8.addConstraint(Sketcher.Constraint("Vertical", 10))
sketch8.addConstraint(Sketcher.Constraint("Horizontal", 11))
sketch8.addConstraint(Sketcher.Constraint("Vertical", 16))
sketch8.addConstraint(Sketcher.Constraint("Horizontal", 17))
sketch8.addConstraint(Sketcher.Constraint("Vertical", 18))
sketch8.addConstraint(Sketcher.Constraint("Horizontal", 19))
sketch8.addConstraint(Sketcher.Constraint("Vertical", 24))
sketch8.addConstraint(Sketcher.Constraint("Horizontal", 25))
sketch8.addConstraint(Sketcher.Constraint("Vertical", 26))
sketch8.addConstraint(Sketcher.Constraint("Horizontal", 27))
sketch8.addConstraint(Sketcher.Constraint("Symmetric", 2, 2, 16, 2, -1, 1))
sketch8.addConstraint(Sketcher.Constraint("Symmetric", 0, 2, 18, 2, -1, 1))
sketch8.addConstraint(Sketcher.Constraint("Symmetric", 4, 2, 20, 2, -1, 1))
sketch8.addConstraint(Sketcher.Constraint("Symmetric", 5, 2, 21, 2, -1, 1))
sketch8.addConstraint(Sketcher.Constraint("Symmetric", 6, 2, 22, 2, -1, 1))
sketch8.addConstraint(Sketcher.Constraint("Symmetric", 7, 2, 23, 2, -1, 1))
sketch8.addConstraint(Sketcher.Constraint("Symmetric", 10, 2, 24, 2, -1, 1))
sketch8.addConstraint(Sketcher.Constraint("Symmetric", 8, 2, 26, 2, -1, 1))
sketch8.addConstraint(Sketcher.Constraint("Symmetric", 13, 2, 20, 2, -2))
sketch8.addConstraint(Sketcher.Constraint("Symmetric", 12, 2, 21, 2, -2))
sketch8.addConstraint(Sketcher.Constraint("Symmetric", 15, 2, 22, 2, -2))
sketch8.addConstraint(Sketcher.Constraint("Symmetric", 14, 2, 23, 2, -2))
sketch8.addConstraint(Sketcher.Constraint("Perpendicular", 4, 5))
sketch8.addConstraint(Sketcher.Constraint("Perpendicular", 5, 6))
sketch8.addConstraint(Sketcher.Constraint("Perpendicular", 6, 7))
sketch8.addConstraint(Sketcher.Constraint("Parallel", 7, 12))
sketch8.addConstraint(Sketcher.Constraint("Horizontal", 9, 2, 24, 2))
sketch8.addConstraint(Sketcher.Constraint("Vertical", 3, 2, 16, 2))
sketch8.addConstraint(Sketcher.Constraint("Equal", 27, 0))
sketch8.addConstraint(Sketcher.Constraint("Equal", 19, 8))
sketch8.addConstraint(Sketcher.Constraint("DistanceX", 1, 1, 1, 2, 5.1))
sketch8.addConstraint(Sketcher.Constraint("DistanceX", 9, 1, 9, 2, 3.1))
sketch8.addConstraint(Sketcher.Constraint("DistanceX", 8, 2, 3, 2, 83.0))
sketch8.addConstraint(Sketcher.Constraint("Distance", 4, 3.1))
sketch8.addConstraint(Sketcher.Constraint("Distance", 5, 5.1))
sketch8.addConstraint(Sketcher.Constraint("DistanceY", 8, 2, 3, 2, 79.9))
sketch8.addConstraint(Sketcher.Constraint("DistanceX", 6, 2, -1, 1, 56.497832))
sketch8.addConstraint(Sketcher.Constraint("DistanceY", -1, 1, 7, 2, 56.497832))
pocket2 = body.newObject("PartDesign::Pocket", "Pocket001")
pocket2.Profile = sketch8
pocket2.Type = "ThroughAll"
pocket2.Reversed = True

# Sketch on XZ plane
sketch9 = body.newObject("Sketcher::SketchObject", "Sketch008")
sketch9.AttachmentSupport = (doc.getObject("XZ_Plane"), [""])
sketch9.MapMode = "FlatFace"
sketch9.AttachmentOffset = App.Placement(V(0, 0, -4), App.Rotation())
add_polygon(sketch9, [(4.75, 4.75), (4.75, 14.754237), (14.754237, 14.754237), (14.754237, 4.75)])  # lines 0-3
sketch9.addConstraint(Sketcher.Constraint("Vertical", 0))
sketch9.addConstraint(Sketcher.Constraint("Horizontal", 1))
sketch9.addConstraint(Sketcher.Constraint("Vertical", 2))
sketch9.addConstraint(Sketcher.Constraint("Horizontal", 3))
sketch9.addConstraint(Sketcher.Constraint("Equal", 3, 0))
sketch9.addConstraint(Sketcher.Constraint("DistanceX", -1, 1, 0, 2, 4.75))
sketch9.addConstraint(Sketcher.Constraint("DistanceY", -1, 1, 2, 2, 4.75))
sketch9.addConstraint(Sketcher.Constraint("DistanceX", 1, 1, 1, 2, 10.004237))
pocket3 = body.newObject("PartDesign::Pocket", "Pocket002")
pocket3.Profile = sketch9
pocket3.Type = "ThroughAll"
pocket3.Reversed = True
doc.recompute()

fillet = body.newObject("PartDesign::Fillet", "Fillet")
fillet.Base = (pocket3, edges_at(pocket3, [
    (2.5, 2, -37.584),
    (2.5, 2, -34.075),
    (2.5, 2, -15.297),
    (2.5, 2, -59.781),
    (-2.5, 2, -37.584),
    (-2.5, 2, -34.075),
    (-2.5, 2, -15.297),
    (-2.5, 2, -59.781),
    (15.297, 2, 2.5),
    (37.584, 2, -2.5),
    (34.075, 2, -2.5),
    (15.297, 2, -2.5),
    (59.781, 2, -2.5),
    (56.278, 2, -2.5),
    (-2.5, 2, 59.781),
    (-2.5, 2, 15.297),
    (-2.5, 2, 34.075),
    (-2.5, 2, 37.584),
    (-2.5, 2, 56.278),
    (2.5, 2, 15.297),
    (-37.584, 2, -2.5),
    (-34.075, 2, -2.5),
    (-34.075, 2, 2.5),
    (-37.584, 2, 2.5),
    (-15.297, 2, 2.5),
    (-15.297, 2, -2.5),
    (-56.278, 2, 2.5),
    (-56.278, 2, -2.5),
    (-59.781, 2, 2.5),
    (-59.781, 2, -2.5),
    (-2.5, 2, -56.278),
    (2.5, 2, -56.278),
]))
fillet.Radius = 2.5
doc.recompute()

fillet2 = body.newObject("PartDesign::Fillet", "Fillet001")
fillet2.Base = (fillet, edges_at(fillet, [
    (-2.5, 2, -79.347),
    (-5, 2, -81.847),
    (-5, 2, -85.855),
    (5, 2, -85.855),
    (5, 2, -81.847),
    (2.5, 2, -79.347),
    (54.339, 2, -61.41),
    (57.173, 2, -64.244),
    (64.244, 2, -57.173),
    (61.41, 2, -54.339),
    (79.347, 2, -2.5),
    (81.847, 2, -5),
    (85.855, 2, -5),
    (79.347, 2, 2.5),
    (2.5, 2, 79.347),
    (-5, 2, 85.855),
    (-5, 2, 81.847),
    (-2.5, 2, 79.347),
    (-79.347, 2, 2.5),
    (-81.847, 2, 5),
    (-85.855, 2, 5),
    (-85.855, 2, -5),
    (-81.847, 2, -5),
    (-79.347, 2, -2.5),
    (-54.339, 2, 61.41),
    (-57.173, 2, 64.244),
    (-64.244, 2, 57.173),
    (-61.41, 2, 54.339),
    (-61.41, 2, -54.339),
    (-64.244, 2, -57.173),
    (-57.173, 2, -64.244),
    (-54.339, 2, -61.41),
]))
fillet2.Radius = 2

doc.recompute()
